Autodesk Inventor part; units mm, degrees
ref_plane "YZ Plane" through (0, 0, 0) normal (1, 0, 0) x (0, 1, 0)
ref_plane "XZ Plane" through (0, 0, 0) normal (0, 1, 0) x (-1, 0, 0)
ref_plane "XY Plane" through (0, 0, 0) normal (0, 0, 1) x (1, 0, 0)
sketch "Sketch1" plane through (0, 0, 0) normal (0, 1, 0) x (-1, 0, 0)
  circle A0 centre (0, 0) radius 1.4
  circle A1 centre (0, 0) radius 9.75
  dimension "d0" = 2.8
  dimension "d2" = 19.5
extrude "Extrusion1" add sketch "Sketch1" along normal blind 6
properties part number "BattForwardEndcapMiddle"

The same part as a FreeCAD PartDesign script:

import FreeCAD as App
import Part
import Sketcher

V = App.Vector

doc = App.newDocument("Part")
body = doc.addObject("PartDesign::Body", "Body")

sketch1 = doc.addObject("Sketcher::SketchObject", "Sketch")
body.addObject(sketch1)
sketch1.AttachmentSupport = (doc.XZ_Plane, [""])
sketch1.MapMode = "FlatFace"
sketch1.addGeometry([
    Part.Circle(V(0, 0, 0), V(0, 0, 1), 9.8),
    Part.Circle(V(0, 0, 0), V(0, 0, 1), 1.4),
], False)
sketch1.addConstraint([
    Sketcher.Constraint("Coincident", 0, 3, -1, 1),
    Sketcher.Constraint("Coincident", 1, 3, -1, 1),
    Sketcher.Constraint("Diameter", 0, 19.5),
    Sketcher.Constraint("Diameter", 1, 2.8),
])
pad1 = doc.addObject("PartDesign::Pad", "Pad")
body.addObject(pad1)
pad1.Profile = sketch1
pad1.Length = 6
pad1.Reversed = True

doc.recompute()
